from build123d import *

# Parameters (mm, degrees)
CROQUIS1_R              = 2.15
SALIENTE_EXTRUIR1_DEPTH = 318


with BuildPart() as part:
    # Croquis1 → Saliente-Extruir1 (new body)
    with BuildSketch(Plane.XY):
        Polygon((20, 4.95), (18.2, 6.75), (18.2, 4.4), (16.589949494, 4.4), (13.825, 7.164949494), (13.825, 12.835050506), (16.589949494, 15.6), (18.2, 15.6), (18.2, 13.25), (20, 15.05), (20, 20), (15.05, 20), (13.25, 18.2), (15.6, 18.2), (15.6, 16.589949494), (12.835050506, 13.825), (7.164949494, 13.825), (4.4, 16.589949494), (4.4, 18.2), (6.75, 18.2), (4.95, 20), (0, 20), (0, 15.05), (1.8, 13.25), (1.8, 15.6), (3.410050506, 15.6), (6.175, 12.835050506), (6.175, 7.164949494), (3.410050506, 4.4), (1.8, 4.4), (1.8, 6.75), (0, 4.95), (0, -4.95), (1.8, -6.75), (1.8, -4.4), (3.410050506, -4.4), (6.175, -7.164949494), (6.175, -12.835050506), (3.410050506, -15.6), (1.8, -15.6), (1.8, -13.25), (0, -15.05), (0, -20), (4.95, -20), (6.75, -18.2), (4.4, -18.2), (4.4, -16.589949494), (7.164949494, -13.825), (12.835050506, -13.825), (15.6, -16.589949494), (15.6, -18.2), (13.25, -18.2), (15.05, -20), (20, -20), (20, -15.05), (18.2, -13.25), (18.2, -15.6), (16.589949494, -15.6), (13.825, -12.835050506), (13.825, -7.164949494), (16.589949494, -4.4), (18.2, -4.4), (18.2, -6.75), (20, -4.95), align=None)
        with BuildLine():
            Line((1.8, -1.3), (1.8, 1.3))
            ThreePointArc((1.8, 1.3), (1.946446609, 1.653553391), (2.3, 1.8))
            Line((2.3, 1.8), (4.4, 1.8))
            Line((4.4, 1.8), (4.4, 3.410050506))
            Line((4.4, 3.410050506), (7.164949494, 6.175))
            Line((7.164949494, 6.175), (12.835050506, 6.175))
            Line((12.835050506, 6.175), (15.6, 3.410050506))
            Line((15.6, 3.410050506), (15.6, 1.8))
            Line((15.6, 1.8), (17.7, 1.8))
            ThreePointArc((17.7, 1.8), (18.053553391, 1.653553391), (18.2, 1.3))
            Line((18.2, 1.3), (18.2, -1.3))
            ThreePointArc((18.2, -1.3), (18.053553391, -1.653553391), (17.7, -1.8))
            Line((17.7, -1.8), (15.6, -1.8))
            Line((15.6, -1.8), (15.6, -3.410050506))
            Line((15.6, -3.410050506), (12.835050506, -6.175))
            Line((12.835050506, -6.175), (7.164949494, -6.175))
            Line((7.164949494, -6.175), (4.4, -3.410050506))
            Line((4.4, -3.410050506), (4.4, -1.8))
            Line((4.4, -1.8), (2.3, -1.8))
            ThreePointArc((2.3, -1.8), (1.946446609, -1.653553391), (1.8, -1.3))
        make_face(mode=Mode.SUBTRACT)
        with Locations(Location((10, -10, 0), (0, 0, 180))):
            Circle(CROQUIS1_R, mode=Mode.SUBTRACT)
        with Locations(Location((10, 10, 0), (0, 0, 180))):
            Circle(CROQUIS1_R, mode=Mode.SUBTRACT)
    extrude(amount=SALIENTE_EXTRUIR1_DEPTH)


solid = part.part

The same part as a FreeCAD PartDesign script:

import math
import FreeCAD as App
import Part
import Sketcher
from FreeCAD import Vector


def add_polygon(sketch, points):
    """Adds a closed chain of lines whose ends are joined by coincident constraints."""
    first, n = sketch.GeometryCount, len(points)
    for a, b in zip(points, points[1:] + points[:1]):
        sketch.addGeometry(Part.LineSegment(App.Vector(*a, 0), App.Vector(*b, 0)), False)
    for i in range(n):
        sketch.addConstraint(Sketcher.Constraint("Coincident", first + i, 2, first + (i + 1) % n, 1))

doc = App.newDocument("Part")
params = doc.addObject("Spreadsheet::Sheet", "Params")
for row, (alias, value) in enumerate([
    ("sketch1_diameter", "4.3 mm"),
    ("sketch1_radius", "0.5 mm"),
    ("sketch1_width", "2.1 mm"),
    ("sketch1_height", "9.9 mm"),
    ("sketch1_height2", "2.6 mm"),
    ("pad1_length", "318 mm"),
], start=1):
    params.set(f"A{row}", alias)
    params.set(f"B{row}", "=" + value)
    params.setAlias(f"B{row}", alias)

body = doc.addObject("PartDesign::Body", "Body")

sketch1 = body.newObject("Sketcher::SketchObject", "Sketch")
sketch1.AttachmentSupport = (doc.getObject("XY_Plane"), [""])
sketch1.MapMode = "FlatFace"
add_polygon(sketch1, [(20, 4.95), (18.2, 6.75), (18.2, 4.4), (16.59, 4.4), (13.82, 7.16), (13.82, 12.84), (16.59, 15.6), (18.2, 15.6), (18.2, 13.25), (20, 15.05), (20, 20), (15.05, 20), (13.25, 18.2), (15.6, 18.2), (15.6, 16.59), (12.84, 13.82), (7.16, 13.82), (4.4, 16.59), (4.4, 18.2), (6.75, 18.2), (4.95, 20), (0, 20), (0, 15.05), (1.8, 13.25), (1.8, 15.6), (3.41, 15.6), (6.17, 12.84), (6.17, 7.16), (3.41, 4.4), (1.8, 4.4), (1.8, 6.75), (0, 4.95), (0, -4.95), (1.8, -6.75), (1.8, -4.4), (3.41, -4.4), (6.17, -7.16), (6.17, -12.84), (3.41, -15.6), (1.8, -15.6), (1.8, -13.25), (0, -15.05), (0, -20), (4.95, -20), (6.75, -18.2), (4.4, -18.2), (4.4, -16.59), (7.16, -13.82), (12.84, -13.82), (15.6, -16.59), (15.6, -18.2), (13.25, -18.2), (15.05, -20), (20, -20), (20, -15.05), (18.2, -13.25), (18.2, -15.6), (16.59, -15.6), (13.82, -12.84), (13.82, -7.16), (16.59, -4.4), (18.2, -4.4), (18.2, -6.75), (20, -4.95)])
sketch1.addGeometry(Part.Circle(Vector(10, -10, 0), Vector(0, 0, 1), 2.15), False)
sketch1.addGeometry(Part.ArcOfCircle(Part.Circle(Vector(2.3, -1.3, 0), Vector(0, 0, 1), 0.5), math.radians(180), math.radians(270)), False)
sketch1.addGeometry(Part.LineSegment(Vector(1.8, -1.3, 0), Vector(1.8, 1.3, 0)), False)
sketch1.addGeometry(Part.ArcOfCircle(Part.Circle(Vector(2.3, 1.3, 0), Vector(0, 0, 1), 0.5), math.radians(90), math.radians(180)), False)
sketch1.addGeometry(Part.LineSegment(Vector(2.3, 1.8, 0), Vector(4.4, 1.8, 0)), False)
sketch1.addGeometry(Part.LineSegment(Vector(4.4, 1.8, 0), Vector(4.4, 3.41, 0)), False)
sketch1.addGeometry(Part.LineSegment(Vector(4.4, 3.41, 0), Vector(7.16, 6.17, 0)), False)
sketch1.addGeometry(Part.LineSegment(Vector(7.16, 6.17, 0), Vector(12.84, 6.17, 0)), False)
sketch1.addGeometry(Part.LineSegment(Vector(12.84, 6.17, 0), Vector(15.6, 3.41, 0)), False)
sketch1.addGeometry(Part.LineSegment(Vector(15.6, 3.41, 0), Vector(15.6, 1.8, 0)), False)
sketch1.addGeometry(Part.LineSegment(Vector(15.6, 1.8, 0), Vector(17.7, 1.8, 0)), False)
sketch1.addGeometry(Part.ArcOfCircle(Part.Circle(Vector(17.7, 1.3, 0), Vector(0, 0, 1), 0.5), math.radians(0), math.radians(90)), False)
sketch1.addGeometry(Part.LineSegment(Vector(18.2, 1.3, 0), Vector(18.2, -1.3, 0)), False)
sketch1.addGeometry(Part.ArcOfCircle(Part.Circle(Vector(17.7, -1.3, 0), Vector(0, 0, 1), 0.5), math.radians(-90), math.radians(0)), False)
sketch1.addGeometry(Part.LineSegment(Vector(17.7, -1.8, 0), Vector(15.6, -1.8, 0)), False)
sketch1.addGeometry(Part.LineSegment(Vector(15.6, -1.8, 0), Vector(15.6, -3.41, 0)), False)
sketch1.addGeometry(Part.LineSegment(Vector(15.6, -3.41, 0), Vector(12.84, -6.17, 0)), False)
sketch1.addGeometry(Part.LineSegment(Vector(12.84, -6.17, 0), Vector(7.16, -6.17, 0)), False)
sketch1.addGeometry(Part.LineSegment(Vector(7.16, -6.17, 0), Vector(4.4, -3.41, 0)), False)
sketch1.addGeometry(Part.LineSegment(Vector(4.4, -3.41, 0), Vector(4.4, -1.8, 0)), False)
sketch1.addGeometry(Part.LineSegment(Vector(4.4, -1.8, 0), Vector(2.3, -1.8, 0)), False)
sketch1.addGeometry(Part.Circle(Vector(10, 10, 0), Vector(0, 0, 1), 2.15), False)
sketch1.addConstraint([
    Sketcher.Constraint("Tangent", 65, 1, 66, 1),
    Sketcher.Constraint("Tangent", 66, 2, 67, 2),
    Sketcher.Constraint("Tangent", 67, 1, 68, 1),
    Sketcher.Constraint("Coincident", 68, 2, 69, 1),
    Sketcher.Constraint("Coincident", 69, 2, 70, 1),
    Sketcher.Constraint("Coincident", 70, 2, 71, 1),
    Sketcher.Constraint("Coincident", 71, 2, 72, 1),
    Sketcher.Constraint("Coincident", 72, 2, 73, 1),
    Sketcher.Constraint("Coincident", 73, 2, 74, 1),
    Sketcher.Constraint("Tangent", 74, 2, 75, 2),
    Sketcher.Constraint("Tangent", 75, 1, 76, 1),
    Sketcher.Constraint("Tangent", 76, 2, 77, 2),
    Sketcher.Constraint("Tangent", 77, 1, 78, 1),
    Sketcher.Constraint("Coincident", 78, 2, 79, 1),
    Sketcher.Constraint("Coincident", 79, 2, 80, 1),
    Sketcher.Constraint("Coincident", 80, 2, 81, 1),
    Sketcher.Constraint("Coincident", 81, 2, 82, 1),
    Sketcher.Constraint("Coincident", 82, 2, 83, 1),
    Sketcher.Constraint("Coincident", 83, 2, 84, 1),
    Sketcher.Constraint("Tangent", 84, 2, 65, 2),
    Sketcher.Constraint("Vertical", 1),
    Sketcher.Constraint("Horizontal", 2),
    Sketcher.Constraint("Vertical", 4),
    Sketcher.Constraint("Horizontal", 6),
    Sketcher.Constraint("Vertical", 7),
    Sketcher.Constraint("Vertical", 9),
    Sketcher.Constraint("Horizontal", 10),
    Sketcher.Constraint("Horizontal", 12),
    Sketcher.Constraint("Vertical", 13),
    Sketcher.Constraint("Horizontal", 15),
    Sketcher.Constraint("Vertical", 17),
    Sketcher.Constraint("Horizontal", 18),
    Sketcher.Constraint("Horizontal", 20),
    Sketcher.Constraint("Vertical", 21),
    Sketcher.Constraint("Vertical", 23),
    Sketcher.Constraint("Horizontal", 24),
    Sketcher.Constraint("Vertical", 26),
    Sketcher.Constraint("Horizontal", 28),
    Sketcher.Constraint("Vertical", 29),
    Sketcher.Constraint("Vertical", 31),
    Sketcher.Constraint("Vertical", 33),
    Sketcher.Constraint("Horizontal", 34),
    Sketcher.Constraint("Vertical", 36),
    Sketcher.Constraint("Horizontal", 38),
    Sketcher.Constraint("Vertical", 39),
    Sketcher.Constraint("Vertical", 41),
    Sketcher.Constraint("Horizontal", 42),
    Sketcher.Constraint("Horizontal", 44),
    Sketcher.Constraint("Vertical", 45),
    Sketcher.Constraint("Horizontal", 47),
    Sketcher.Constraint("Vertical", 49),
    Sketcher.Constraint("Horizontal", 50),
    Sketcher.Constraint("Horizontal", 52),
    Sketcher.Constraint("Vertical", 53),
    Sketcher.Constraint("Vertical", 55),
    Sketcher.Constraint("Horizontal", 56),
    Sketcher.Constraint("Vertical", 58),
    Sketcher.Constraint("Horizontal", 60),
    Sketcher.Constraint("Vertical", 61),
    Sketcher.Constraint("Vertical", 63),
    Sketcher.Constraint("Vertical", 66),
    Sketcher.Constraint("Horizontal", 68),
    Sketcher.Constraint("Vertical", 69),
    Sketcher.Constraint("Horizontal", 71),
    Sketcher.Constraint("Vertical", 73),
    Sketcher.Constraint("Horizontal", 74),
    Sketcher.Constraint("Vertical", 76),
    Sketcher.Constraint("Horizontal", 78),
    Sketcher.Constraint("Vertical", 79),
    Sketcher.Constraint("Horizontal", 81),
    Sketcher.Constraint("Vertical", 83),
    Sketcher.Constraint("Horizontal", 84),
    Sketcher.Constraint("Equal", 65, 67),
    Sketcher.Constraint("Equal", 67, 75),
    Sketcher.Constraint("Equal", 75, 77),
    Sketcher.Constraint("Equal", 64, 85),
    Sketcher.Constraint("Symmetric", 30, 2, 31, 2, -1, 1),
    Sketcher.Constraint("Symmetric", 21, 2, 40, 2, -1, 1),
    Sketcher.Constraint("Symmetric", 64, 3, 85, 3, -1),
    Sketcher.Constraint("Symmetric", 29, 2, 32, 2, -1),
    Sketcher.Constraint("Symmetric", 27, 2, 34, 2, -1),
    Sketcher.Constraint("Symmetric", 26, 2, 35, 2, -1),
    Sketcher.Constraint("Symmetric", 24, 2, 37, 2, -1),
    Sketcher.Constraint("Symmetric", 22, 2, 39, 2, -1),
    Sketcher.Constraint("Symmetric", 20, 2, 41, 2, -1),
    Sketcher.Constraint("Symmetric", 18, 2, 43, 2, -1),
    Sketcher.Constraint("Symmetric", 16, 2, 45, 2, -1),
    Sketcher.Constraint("Symmetric", 15, 2, 46, 2, -1),
    Sketcher.Constraint("Symmetric", 13, 2, 48, 2, -1),
    Sketcher.Constraint("Symmetric", 11, 2, 50, 2, -1),
    Sketcher.Constraint("Symmetric", 10, 2, 51, 2, -1),
    Sketcher.Constraint("Symmetric", 8, 2, 53, 2, -1),
    Sketcher.Constraint("Symmetric", 7, 2, 54, 2, -1),
    Sketcher.Constraint("Symmetric", 5, 2, 56, 2, -1),
    Sketcher.Constraint("Symmetric", 4, 2, 57, 2, -1),
    Sketcher.Constraint("Symmetric", 2, 2, 59, 2, -1),
    Sketcher.Constraint("Symmetric", 0, 2, 61, 2, -1),
    Sketcher.Constraint("Symmetric", 73, 2, 78, 2, -1),
    Sketcher.Constraint("Symmetric", 71, 2, 80, 2, -1),
    Sketcher.Constraint("Symmetric", 69, 2, 82, 2, -1),
    Sketcher.Constraint("Parallel", 0, 3),
    Sketcher.Constraint("Perpendicular", 3, 5),
    Sketcher.Constraint("Parallel", 5, 8),
    Sketcher.Constraint("Parallel", 8, 11),
    Sketcher.Constraint("Parallel", 11, 14),
    Sketcher.Constraint("Perpendicular", 14, 16),
    Sketcher.Constraint("Parallel", 16, 19),
    Sketcher.Constraint("Parallel", 19, 22),
    Sketcher.Constraint("Parallel", 22, 25),
    Sketcher.Constraint("Perpendicular", 25, 27),
    Sketcher.Constraint("Parallel", 27, 30),
    Sketcher.Constraint("Perpendicular", 30, 32),
    Sketcher.Constraint("Perpendicular", 35, 37),
    Sketcher.Constraint("Parallel", 40, 43),
    Sketcher.Constraint("Perpendicular", 46, 48),
    Sketcher.Constraint("Perpendicular", 57, 59),
    Sketcher.Constraint("Parallel", 59, 62),
    Sketcher.Constraint("Parallel", 62, 70),
    Sketcher.Constraint("Perpendicular", 70, 72),
    Sketcher.Constraint("Perpendicular", 72, 80),
    Sketcher.Constraint("Perpendicular", 80, 82),
    Sketcher.Constraint("Horizontal", 67, 3, 75, 3),
    Sketcher.Constraint("Horizontal", 65, 3, 77, 3),
    Sketcher.Constraint("Horizontal", 13, 2, 16, 2),
    Sketcher.Constraint("Horizontal", 12, 2, 17, 2),
    Sketcher.Constraint("Horizontal", 10, 2, 19, 2),
    Sketcher.Constraint("Horizontal", 8, 2, 21, 2),
    Sketcher.Constraint("Horizontal", 7, 2, 22, 2),
    Sketcher.Constraint("Horizontal", 6, 2, 23, 2),
    Sketcher.Constraint("Horizontal", 4, 2, 25, 2),
    Sketcher.Constraint("Horizontal", 3, 2, 26, 2),
    Sketcher.Constraint("Horizontal", 2, 2, 27, 2),
    Sketcher.Constraint("Horizontal", 0, 2, 29, 2),
    Sketcher.Constraint("Horizontal", 31, 2, 62, 2),
    Sketcher.Constraint("Horizontal", 69, 2, 72, 2),
    Sketcher.Constraint("Vertical", 2, 2, 5, 2),
    Sketcher.Constraint("Vertical", 1, 2, 6, 2),
    Sketcher.Constraint("Vertical", 23, 2, 28, 2),
    Sketcher.Constraint("Vertical", 39, 2, 65, 1),
    Sketcher.Constraint("Vertical", 45, 2, 68, 2),
    Sketcher.Constraint("Vertical", 46, 2, 70, 2),
    Sketcher.Constraint("Vertical", 47, 2, 71, 2),
    Sketcher.Constraint("Vertical", 61, 2, 75, 1),
    Sketcher.Constraint("Equal", 12, 18),
    Sketcher.Constraint("Equal", 10, 20),
    Sketcher.Constraint("Equal", 6, 24),
    Sketcher.Constraint("Equal", 50, 1),
    Sketcher.Constraint("Equal", 81, 4),
    Sketcher.Constraint("Equal", 1, 7),
    Sketcher.Constraint("Equal", 52, 9),
    Sketcher.Constraint("Equal", 60, 13),
    Sketcher.Constraint("Equal", 49, 69),
    Sketcher.Constraint("Equal", 8, 11),
    Sketcher.Constraint("Equal", 5, 14),
    Sketcher.Constraint("Diameter", 64, 4.3),
    Sketcher.Constraint("Radius", 65, 0.5),
    Sketcher.Constraint("DistanceX", 68, 1, 68, 2, 2.1),
    Sketcher.Constraint("DistanceY", 31, 2, 31, 1, 9.9),
    Sketcher.Constraint("DistanceY", 66, 1, 66, 2, 2.6),
    Sketcher.Constraint("DistanceX", -1, 1, 64, 3, 10.0),
    Sketcher.Constraint("DistanceY", 64, 3, -1, 1, 10.0),
    Sketcher.Constraint("DistanceX", -1, 1, 8, 2, 20.0),
    Sketcher.Constraint("DistanceY", -1, 1, 9, 2, 20.0),
    Sketcher.Constraint("DistanceX", -1, 1, 65, 3, 2.3),
    Sketcher.Constraint("DistanceX", 15, 2, 15, 1, 5.670101),
    Sketcher.Constraint("DistanceX", -1, 1, 3, 2, 13.825),
])
sketch1.setExpression("Constraints[218]", "Params.sketch1_diameter")
sketch1.setExpression("Constraints[219]", "Params.sketch1_radius")
sketch1.setExpression("Constraints[220]", "Params.sketch1_width")
sketch1.setExpression("Constraints[221]", "Params.sketch1_height")
sketch1.setExpression("Constraints[222]", "Params.sketch1_height2")
pad1 = body.newObject("PartDesign::Pad", "Pad")
pad1.Profile = sketch1
pad1.setExpression("Length", "Params.pad1_length")

doc.recompute()
